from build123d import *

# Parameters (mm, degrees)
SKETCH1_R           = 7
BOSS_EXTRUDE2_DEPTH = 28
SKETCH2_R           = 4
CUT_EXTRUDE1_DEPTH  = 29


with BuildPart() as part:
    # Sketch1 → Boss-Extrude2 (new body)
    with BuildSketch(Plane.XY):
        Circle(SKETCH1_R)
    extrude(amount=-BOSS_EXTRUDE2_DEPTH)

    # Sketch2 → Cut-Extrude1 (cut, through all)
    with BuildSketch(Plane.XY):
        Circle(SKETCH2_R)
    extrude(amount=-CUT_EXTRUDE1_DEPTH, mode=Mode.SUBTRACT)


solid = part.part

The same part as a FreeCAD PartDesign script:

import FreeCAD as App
import Part
import Sketcher

V = App.Vector

doc = App.newDocument("Part")
body = doc.addObject("PartDesign::Body", "Body")

# Sketch on XY plane
sketch1 = doc.addObject("Sketcher::SketchObject", "Sketch")
body.addObject(sketch1)
sketch1.AttachmentSupport = (doc.XY_Plane, [""])
sketch1.MapMode = "FlatFace"
sketch1.addGeometry(Part.Circle(V(0, 0, 0), V(0, 0, 1), 7), False)
sketch1.addConstraint([
    Sketcher.Constraint("Coincident", 0, 3, -1, 1),
    Sketcher.Constraint("Diameter", 0, 14.0),
])
pad1 = doc.addObject("PartDesign::Pad", "Pad")
body.addObject(pad1)
pad1.Profile = sketch1
pad1.Length = 28
pad1.Reversed = True

# Sketch on XY plane
sketch2 = doc.addObject("Sketcher::SketchObject", "Sketch001")
body.addObject(sketch2)
sketch2.AttachmentSupport = (doc.XY_Plane, [""])
sketch2.MapMode = "FlatFace"
sketch2.addGeometry(Part.Circle(V(0, 0, 0), V(0, 0, 1), 4), False)
sketch2.addConstraint([
    Sketcher.Constraint("Coincident", 0, 3, -1, 1),
    Sketcher.Constraint("Diameter", 0, 8.0),
])
pocket1 = doc.addObject("PartDesign::Pocket", "Pocket")
body.addObject(pocket1)
pocket1.Profile = sketch2
pocket1.Type = "ThroughAll"

doc.recompute()
